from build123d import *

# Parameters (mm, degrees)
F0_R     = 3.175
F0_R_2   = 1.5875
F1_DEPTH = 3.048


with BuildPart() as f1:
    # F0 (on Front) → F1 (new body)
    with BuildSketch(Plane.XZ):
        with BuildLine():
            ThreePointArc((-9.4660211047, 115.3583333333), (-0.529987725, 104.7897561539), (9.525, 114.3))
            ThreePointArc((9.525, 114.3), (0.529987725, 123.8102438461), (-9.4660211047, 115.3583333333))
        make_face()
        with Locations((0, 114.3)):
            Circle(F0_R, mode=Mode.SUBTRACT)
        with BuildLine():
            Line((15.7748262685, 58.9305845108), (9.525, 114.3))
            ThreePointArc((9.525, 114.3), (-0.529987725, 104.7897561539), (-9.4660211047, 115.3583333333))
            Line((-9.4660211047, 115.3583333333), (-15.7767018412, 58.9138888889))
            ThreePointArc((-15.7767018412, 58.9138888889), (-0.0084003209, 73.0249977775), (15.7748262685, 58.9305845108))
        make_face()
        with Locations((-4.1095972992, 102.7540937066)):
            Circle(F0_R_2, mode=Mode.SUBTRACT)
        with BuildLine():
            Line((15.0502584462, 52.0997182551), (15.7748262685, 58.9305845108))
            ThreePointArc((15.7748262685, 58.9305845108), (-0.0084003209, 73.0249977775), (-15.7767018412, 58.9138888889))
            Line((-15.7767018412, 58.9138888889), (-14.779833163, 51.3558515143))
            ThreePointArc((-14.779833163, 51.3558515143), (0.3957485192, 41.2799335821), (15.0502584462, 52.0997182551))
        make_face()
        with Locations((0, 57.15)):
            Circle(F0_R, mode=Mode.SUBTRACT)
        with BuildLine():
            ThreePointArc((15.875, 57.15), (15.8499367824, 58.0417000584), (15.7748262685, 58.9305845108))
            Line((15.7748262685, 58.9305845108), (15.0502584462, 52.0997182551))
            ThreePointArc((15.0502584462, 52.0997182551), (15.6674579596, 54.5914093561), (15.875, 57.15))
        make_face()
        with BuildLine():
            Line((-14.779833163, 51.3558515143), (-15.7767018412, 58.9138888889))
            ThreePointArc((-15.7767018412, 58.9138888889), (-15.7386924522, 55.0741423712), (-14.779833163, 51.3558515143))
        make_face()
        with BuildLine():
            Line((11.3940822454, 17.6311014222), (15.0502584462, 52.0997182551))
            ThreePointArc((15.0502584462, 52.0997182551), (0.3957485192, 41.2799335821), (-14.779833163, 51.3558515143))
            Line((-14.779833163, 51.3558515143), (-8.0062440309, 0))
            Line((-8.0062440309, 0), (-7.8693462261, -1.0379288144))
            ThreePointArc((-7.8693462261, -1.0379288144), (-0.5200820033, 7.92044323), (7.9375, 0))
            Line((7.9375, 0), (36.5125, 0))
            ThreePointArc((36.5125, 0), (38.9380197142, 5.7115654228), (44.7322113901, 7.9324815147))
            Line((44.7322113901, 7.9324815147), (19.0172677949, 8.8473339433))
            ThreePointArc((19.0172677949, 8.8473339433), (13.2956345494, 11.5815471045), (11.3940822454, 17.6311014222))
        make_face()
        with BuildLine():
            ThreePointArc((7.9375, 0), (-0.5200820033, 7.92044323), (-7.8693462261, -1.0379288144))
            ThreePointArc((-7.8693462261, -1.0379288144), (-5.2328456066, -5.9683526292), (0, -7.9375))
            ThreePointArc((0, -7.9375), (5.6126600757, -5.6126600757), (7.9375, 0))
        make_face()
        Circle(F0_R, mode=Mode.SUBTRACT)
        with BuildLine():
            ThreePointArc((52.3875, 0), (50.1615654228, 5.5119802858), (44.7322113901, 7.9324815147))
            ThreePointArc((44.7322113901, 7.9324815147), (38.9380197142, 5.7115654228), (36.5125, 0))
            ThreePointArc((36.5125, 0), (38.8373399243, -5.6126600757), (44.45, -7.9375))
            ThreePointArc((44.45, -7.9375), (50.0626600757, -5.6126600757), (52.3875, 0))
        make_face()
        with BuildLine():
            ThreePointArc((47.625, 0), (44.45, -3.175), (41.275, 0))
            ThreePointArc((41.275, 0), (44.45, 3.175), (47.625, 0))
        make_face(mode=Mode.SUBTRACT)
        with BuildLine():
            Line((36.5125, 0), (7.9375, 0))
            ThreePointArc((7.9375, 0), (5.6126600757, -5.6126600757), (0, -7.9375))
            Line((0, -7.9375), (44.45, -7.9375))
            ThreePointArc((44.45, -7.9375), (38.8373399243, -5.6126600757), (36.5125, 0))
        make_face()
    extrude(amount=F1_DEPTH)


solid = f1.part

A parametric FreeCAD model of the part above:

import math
import FreeCAD as App
import Part
import Sketcher
from FreeCAD import Vector
Q = App.Units.Quantity

doc = App.newDocument("Part")
params = doc.addObject("Spreadsheet::Sheet", "Params")
for row, (alias, value) in enumerate([
    ("sketch1_diameter", "0.25 in"),
    ("sketch1_diameter2", "0.125 in"),
    ("sketch1_radius", "0.375 in"),
    ("sketch1_radius2", "0.625 in"),
    ("sketch1_radius3", "0.3125 in"),
    ("pad1_length", "0.12 in"),
], start=1):
    params.set(f"A{row}", alias)
    params.set(f"B{row}", "=" + value)
    params.setAlias(f"B{row}", alias)

body = doc.addObject("PartDesign::Body", "Body")

# Sketch on XZ plane
sketch1 = body.newObject("Sketcher::SketchObject", "Sketch")
sketch1.AttachmentSupport = (doc.getObject("XZ_Plane"), [""])
sketch1.MapMode = "FlatFace"
sketch1.addGeometry(Part.ArcOfCircle(Part.Circle(Vector(0, 114.3, 0), Vector(0, 0, 1), 9.525), math.radians(0), math.radians(173.62063)), False)
sketch1.addGeometry(Part.LineSegment(Vector(-9.466021, 115.358333, 0), Vector(-15.776702, 58.913889, 0)), False)
sketch1.addGeometry(Part.ArcOfCircle(Part.Circle(Vector(0, 57.15, 0), Vector(0, 0, 1), 15.875), math.radians(173.62063), math.radians(201.406705)), False)
sketch1.addGeometry(Part.LineSegment(Vector(-14.779833, 51.355852, 0), Vector(-8.006244, 0, 0)), False)
sketch1.addGeometry(Part.LineSegment(Vector(-8.006244, 0, 0), Vector(-7.869346, -1.037929, 0)), False)
sketch1.addGeometry(Part.ArcOfCircle(Part.Circle(Vector(0, 0, 0), Vector(0, 0, 1), 7.9375), math.radians(-172.486333), math.radians(-90)), False)
sketch1.addGeometry(Part.LineSegment(Vector(0, -7.9375, 0), Vector(44.45, -7.9375, 0)), False)
sketch1.addGeometry(Part.ArcOfCircle(Part.Circle(Vector(44.45, 0, 0), Vector(0, 0, 1), 7.9375), math.radians(-90), math.radians(0)), False)
sketch1.addGeometry(Part.ArcOfCircle(Part.Circle(Vector(44.45, 0, 0), Vector(0, 0, 1), 7.9375), math.radians(0), math.radians(87.962465)), False)
sketch1.addGeometry(Part.LineSegment(Vector(44.732211, 7.932482, 0), Vector(19.017268, 8.847334, 0)), False)
sketch1.addGeometry(Part.ArcOfCircle(Part.Circle(Vector(19.299931, 16.792507, 0), Vector(0, 0, 1), 7.9502), math.radians(173.945128), math.radians(267.962465)), False)
sketch1.addGeometry(Part.LineSegment(Vector(11.394082, 17.631101, 0), Vector(15.050258, 52.099718, 0)), False)
sketch1.addGeometry(Part.ArcOfCircle(Part.Circle(Vector(0, 57.15, 0), Vector(0, 0, 1), 15.875), math.radians(-18.549751), math.radians(0)), False)
sketch1.addGeometry(Part.ArcOfCircle(Part.Circle(Vector(0, 57.15, 0), Vector(0, 0, 1), 15.875), math.radians(0), math.radians(6.440007)), False)
sketch1.addGeometry(Part.LineSegment(Vector(15.774826, 58.930585, 0), Vector(9.525, 114.3, 0)), False)
sketch1.addGeometry(Part.Circle(Vector(0, 0, 0), Vector(0, 0, 1), 3.175), False)
sketch1.addGeometry(Part.Circle(Vector(44.45, 0, 0), Vector(0, 0, 1), 3.175), False)
sketch1.addGeometry(Part.Circle(Vector(0, 57.15, 0), Vector(0, 0, 1), 3.175), False)
sketch1.addGeometry(Part.Circle(Vector(-4.109597, 102.754094, 0), Vector(0, 0, 1), 1.5875), False)
sketch1.addGeometry(Part.Circle(Vector(0, 114.3, 0), Vector(0, 0, 1), 3.175), False)
sketch1.addConstraint(Sketcher.Constraint("Tangent", 0, 2, 1, 1))
sketch1.addConstraint(Sketcher.Constraint("Tangent", 1, 2, 2, 1))
sketch1.addConstraint(Sketcher.Constraint("Coincident", 2, 2, 3, 1))
sketch1.addConstraint(Sketcher.Constraint("Coincident", 3, 2, 4, 1))
sketch1.addConstraint(Sketcher.Constraint("Tangent", 4, 2, 5, 1))
sketch1.addConstraint(Sketcher.Constraint("Tangent", 5, 2, 6, 1))
sketch1.addConstraint(Sketcher.Constraint("Tangent", 6, 2, 7, 1))
sketch1.addConstraint(Sketcher.Constraint("Tangent", 7, 2, 8, 1))
sketch1.addConstraint(Sketcher.Constraint("Tangent", 8, 2, 9, 1))
sketch1.addConstraint(Sketcher.Constraint("Tangent", 9, 2, 10, 2))
sketch1.addConstraint(Sketcher.Constraint("Tangent", 10, 1, 11, 1))
sketch1.addConstraint(Sketcher.Constraint("Coincident", 11, 2, 12, 1))
sketch1.addConstraint(Sketcher.Constraint("Tangent", 12, 2, 13, 1))
sketch1.addConstraint(Sketcher.Constraint("Tangent", 13, 2, 14, 1))
sketch1.addConstraint(Sketcher.Constraint("Coincident", 14, 2, 0, 1))
sketch1.addConstraint(Sketcher.Constraint("Horizontal", 6))
sketch1.addConstraint(Sketcher.Constraint("Coincident", 5, 3, -1, 1))
sketch1.addConstraint(Sketcher.Constraint("Coincident", 15, 3, -1, 1))
sketch1.addConstraint(Sketcher.Constraint("Coincident", 12, 3, 2, 3))
sketch1.addConstraint(Sketcher.Constraint("Coincident", 16, 3, 7, 3))
sketch1.addConstraint(Sketcher.Constraint("Coincident", 17, 3, 2, 3))
sketch1.addConstraint(Sketcher.Constraint("Coincident", 19, 3, 0, 3))
sketch1.addConstraint(Sketcher.Constraint("Equal", 5, 7))
sketch1.addConstraint(Sketcher.Constraint("Equal", 7, 8))
sketch1.addConstraint(Sketcher.Constraint("Equal", 2, 12))
sketch1.addConstraint(Sketcher.Constraint("Equal", 12, 13))
sketch1.addConstraint(Sketcher.Constraint("Equal", 15, 16))
sketch1.addConstraint(Sketcher.Constraint("Equal", 16, 17))
sketch1.addConstraint(Sketcher.Constraint("Equal", 17, 19))
sketch1.addConstraint(Sketcher.Constraint("PointOnObject", 0, 3, -2))
sketch1.addConstraint(Sketcher.Constraint("PointOnObject", 2, 3, -2))
sketch1.addConstraint(Sketcher.Constraint("PointOnObject", 3, 2, -1))
sketch1.addConstraint(Sketcher.Constraint("PointOnObject", 7, 2, -1))
sketch1.addConstraint(Sketcher.Constraint("Parallel", 3, 4))
sketch1.addConstraint(Sketcher.Constraint("Horizontal", 17, 3, 12, 2))
sketch1.addConstraint(Sketcher.Constraint("Horizontal", 19, 3, 14, 2))
sketch1.addConstraint(Sketcher.Constraint("Diameter", 15, Q("0.25 in")))
sketch1.addConstraint(Sketcher.Constraint("Diameter", 18, Q("0.125 in")))
sketch1.addConstraint(Sketcher.Constraint("Radius", 0, Q("0.375 in")))
sketch1.addConstraint(Sketcher.Constraint("Radius", 2, Q("0.625 in")))
sketch1.addConstraint(Sketcher.Constraint("Radius", 5, Q("0.3125 in")))
sketch1.addConstraint(Sketcher.Constraint("Radius", 10, Q("0.313 in")))
sketch1.addConstraint(Sketcher.Constraint("DistanceX", 6, 1, 6, 2, Q("1.75 in")))
sketch1.addConstraint(Sketcher.Constraint("DistanceY", -1, 1, 0, 3, Q("4.5 in")))
sketch1.addConstraint(Sketcher.Constraint("DistanceY", -1, 1, 2, 3, Q("2.25 in")))
sketch1.addConstraint(Sketcher.Constraint("DistanceY", -1, 1, 10, 1, 17.631101))
sketch1.addConstraint(Sketcher.Constraint("DistanceX", -1, 1, 10, 3, 19.299931))
sketch1.addConstraint(Sketcher.Constraint("DistanceY", -1, 1, 2, 2, 51.355852))
sketch1.addConstraint(Sketcher.Constraint("DistanceX", -1, 1, 11, 2, 15.050258))
sketch1.addConstraint(Sketcher.Constraint("DistanceY", 18, 3, 0, 2, 12.60424))
sketch1.addConstraint(Sketcher.Constraint("DistanceX", 18, 3, -1, 1, 4.109597))
sketch1.setExpression("Constraints[36]", "Params.sketch1_diameter")
sketch1.setExpression("Constraints[37]", "Params.sketch1_diameter2")
sketch1.setExpression("Constraints[38]", "Params.sketch1_radius")
sketch1.setExpression("Constraints[39]", "Params.sketch1_radius2")
sketch1.setExpression("Constraints[40]", "Params.sketch1_radius3")
pad1 = body.newObject("PartDesign::Pad", "Pad")
pad1.Profile = sketch1
pad1.setExpression("Length", "Params.pad1_length")

doc.recompute()
